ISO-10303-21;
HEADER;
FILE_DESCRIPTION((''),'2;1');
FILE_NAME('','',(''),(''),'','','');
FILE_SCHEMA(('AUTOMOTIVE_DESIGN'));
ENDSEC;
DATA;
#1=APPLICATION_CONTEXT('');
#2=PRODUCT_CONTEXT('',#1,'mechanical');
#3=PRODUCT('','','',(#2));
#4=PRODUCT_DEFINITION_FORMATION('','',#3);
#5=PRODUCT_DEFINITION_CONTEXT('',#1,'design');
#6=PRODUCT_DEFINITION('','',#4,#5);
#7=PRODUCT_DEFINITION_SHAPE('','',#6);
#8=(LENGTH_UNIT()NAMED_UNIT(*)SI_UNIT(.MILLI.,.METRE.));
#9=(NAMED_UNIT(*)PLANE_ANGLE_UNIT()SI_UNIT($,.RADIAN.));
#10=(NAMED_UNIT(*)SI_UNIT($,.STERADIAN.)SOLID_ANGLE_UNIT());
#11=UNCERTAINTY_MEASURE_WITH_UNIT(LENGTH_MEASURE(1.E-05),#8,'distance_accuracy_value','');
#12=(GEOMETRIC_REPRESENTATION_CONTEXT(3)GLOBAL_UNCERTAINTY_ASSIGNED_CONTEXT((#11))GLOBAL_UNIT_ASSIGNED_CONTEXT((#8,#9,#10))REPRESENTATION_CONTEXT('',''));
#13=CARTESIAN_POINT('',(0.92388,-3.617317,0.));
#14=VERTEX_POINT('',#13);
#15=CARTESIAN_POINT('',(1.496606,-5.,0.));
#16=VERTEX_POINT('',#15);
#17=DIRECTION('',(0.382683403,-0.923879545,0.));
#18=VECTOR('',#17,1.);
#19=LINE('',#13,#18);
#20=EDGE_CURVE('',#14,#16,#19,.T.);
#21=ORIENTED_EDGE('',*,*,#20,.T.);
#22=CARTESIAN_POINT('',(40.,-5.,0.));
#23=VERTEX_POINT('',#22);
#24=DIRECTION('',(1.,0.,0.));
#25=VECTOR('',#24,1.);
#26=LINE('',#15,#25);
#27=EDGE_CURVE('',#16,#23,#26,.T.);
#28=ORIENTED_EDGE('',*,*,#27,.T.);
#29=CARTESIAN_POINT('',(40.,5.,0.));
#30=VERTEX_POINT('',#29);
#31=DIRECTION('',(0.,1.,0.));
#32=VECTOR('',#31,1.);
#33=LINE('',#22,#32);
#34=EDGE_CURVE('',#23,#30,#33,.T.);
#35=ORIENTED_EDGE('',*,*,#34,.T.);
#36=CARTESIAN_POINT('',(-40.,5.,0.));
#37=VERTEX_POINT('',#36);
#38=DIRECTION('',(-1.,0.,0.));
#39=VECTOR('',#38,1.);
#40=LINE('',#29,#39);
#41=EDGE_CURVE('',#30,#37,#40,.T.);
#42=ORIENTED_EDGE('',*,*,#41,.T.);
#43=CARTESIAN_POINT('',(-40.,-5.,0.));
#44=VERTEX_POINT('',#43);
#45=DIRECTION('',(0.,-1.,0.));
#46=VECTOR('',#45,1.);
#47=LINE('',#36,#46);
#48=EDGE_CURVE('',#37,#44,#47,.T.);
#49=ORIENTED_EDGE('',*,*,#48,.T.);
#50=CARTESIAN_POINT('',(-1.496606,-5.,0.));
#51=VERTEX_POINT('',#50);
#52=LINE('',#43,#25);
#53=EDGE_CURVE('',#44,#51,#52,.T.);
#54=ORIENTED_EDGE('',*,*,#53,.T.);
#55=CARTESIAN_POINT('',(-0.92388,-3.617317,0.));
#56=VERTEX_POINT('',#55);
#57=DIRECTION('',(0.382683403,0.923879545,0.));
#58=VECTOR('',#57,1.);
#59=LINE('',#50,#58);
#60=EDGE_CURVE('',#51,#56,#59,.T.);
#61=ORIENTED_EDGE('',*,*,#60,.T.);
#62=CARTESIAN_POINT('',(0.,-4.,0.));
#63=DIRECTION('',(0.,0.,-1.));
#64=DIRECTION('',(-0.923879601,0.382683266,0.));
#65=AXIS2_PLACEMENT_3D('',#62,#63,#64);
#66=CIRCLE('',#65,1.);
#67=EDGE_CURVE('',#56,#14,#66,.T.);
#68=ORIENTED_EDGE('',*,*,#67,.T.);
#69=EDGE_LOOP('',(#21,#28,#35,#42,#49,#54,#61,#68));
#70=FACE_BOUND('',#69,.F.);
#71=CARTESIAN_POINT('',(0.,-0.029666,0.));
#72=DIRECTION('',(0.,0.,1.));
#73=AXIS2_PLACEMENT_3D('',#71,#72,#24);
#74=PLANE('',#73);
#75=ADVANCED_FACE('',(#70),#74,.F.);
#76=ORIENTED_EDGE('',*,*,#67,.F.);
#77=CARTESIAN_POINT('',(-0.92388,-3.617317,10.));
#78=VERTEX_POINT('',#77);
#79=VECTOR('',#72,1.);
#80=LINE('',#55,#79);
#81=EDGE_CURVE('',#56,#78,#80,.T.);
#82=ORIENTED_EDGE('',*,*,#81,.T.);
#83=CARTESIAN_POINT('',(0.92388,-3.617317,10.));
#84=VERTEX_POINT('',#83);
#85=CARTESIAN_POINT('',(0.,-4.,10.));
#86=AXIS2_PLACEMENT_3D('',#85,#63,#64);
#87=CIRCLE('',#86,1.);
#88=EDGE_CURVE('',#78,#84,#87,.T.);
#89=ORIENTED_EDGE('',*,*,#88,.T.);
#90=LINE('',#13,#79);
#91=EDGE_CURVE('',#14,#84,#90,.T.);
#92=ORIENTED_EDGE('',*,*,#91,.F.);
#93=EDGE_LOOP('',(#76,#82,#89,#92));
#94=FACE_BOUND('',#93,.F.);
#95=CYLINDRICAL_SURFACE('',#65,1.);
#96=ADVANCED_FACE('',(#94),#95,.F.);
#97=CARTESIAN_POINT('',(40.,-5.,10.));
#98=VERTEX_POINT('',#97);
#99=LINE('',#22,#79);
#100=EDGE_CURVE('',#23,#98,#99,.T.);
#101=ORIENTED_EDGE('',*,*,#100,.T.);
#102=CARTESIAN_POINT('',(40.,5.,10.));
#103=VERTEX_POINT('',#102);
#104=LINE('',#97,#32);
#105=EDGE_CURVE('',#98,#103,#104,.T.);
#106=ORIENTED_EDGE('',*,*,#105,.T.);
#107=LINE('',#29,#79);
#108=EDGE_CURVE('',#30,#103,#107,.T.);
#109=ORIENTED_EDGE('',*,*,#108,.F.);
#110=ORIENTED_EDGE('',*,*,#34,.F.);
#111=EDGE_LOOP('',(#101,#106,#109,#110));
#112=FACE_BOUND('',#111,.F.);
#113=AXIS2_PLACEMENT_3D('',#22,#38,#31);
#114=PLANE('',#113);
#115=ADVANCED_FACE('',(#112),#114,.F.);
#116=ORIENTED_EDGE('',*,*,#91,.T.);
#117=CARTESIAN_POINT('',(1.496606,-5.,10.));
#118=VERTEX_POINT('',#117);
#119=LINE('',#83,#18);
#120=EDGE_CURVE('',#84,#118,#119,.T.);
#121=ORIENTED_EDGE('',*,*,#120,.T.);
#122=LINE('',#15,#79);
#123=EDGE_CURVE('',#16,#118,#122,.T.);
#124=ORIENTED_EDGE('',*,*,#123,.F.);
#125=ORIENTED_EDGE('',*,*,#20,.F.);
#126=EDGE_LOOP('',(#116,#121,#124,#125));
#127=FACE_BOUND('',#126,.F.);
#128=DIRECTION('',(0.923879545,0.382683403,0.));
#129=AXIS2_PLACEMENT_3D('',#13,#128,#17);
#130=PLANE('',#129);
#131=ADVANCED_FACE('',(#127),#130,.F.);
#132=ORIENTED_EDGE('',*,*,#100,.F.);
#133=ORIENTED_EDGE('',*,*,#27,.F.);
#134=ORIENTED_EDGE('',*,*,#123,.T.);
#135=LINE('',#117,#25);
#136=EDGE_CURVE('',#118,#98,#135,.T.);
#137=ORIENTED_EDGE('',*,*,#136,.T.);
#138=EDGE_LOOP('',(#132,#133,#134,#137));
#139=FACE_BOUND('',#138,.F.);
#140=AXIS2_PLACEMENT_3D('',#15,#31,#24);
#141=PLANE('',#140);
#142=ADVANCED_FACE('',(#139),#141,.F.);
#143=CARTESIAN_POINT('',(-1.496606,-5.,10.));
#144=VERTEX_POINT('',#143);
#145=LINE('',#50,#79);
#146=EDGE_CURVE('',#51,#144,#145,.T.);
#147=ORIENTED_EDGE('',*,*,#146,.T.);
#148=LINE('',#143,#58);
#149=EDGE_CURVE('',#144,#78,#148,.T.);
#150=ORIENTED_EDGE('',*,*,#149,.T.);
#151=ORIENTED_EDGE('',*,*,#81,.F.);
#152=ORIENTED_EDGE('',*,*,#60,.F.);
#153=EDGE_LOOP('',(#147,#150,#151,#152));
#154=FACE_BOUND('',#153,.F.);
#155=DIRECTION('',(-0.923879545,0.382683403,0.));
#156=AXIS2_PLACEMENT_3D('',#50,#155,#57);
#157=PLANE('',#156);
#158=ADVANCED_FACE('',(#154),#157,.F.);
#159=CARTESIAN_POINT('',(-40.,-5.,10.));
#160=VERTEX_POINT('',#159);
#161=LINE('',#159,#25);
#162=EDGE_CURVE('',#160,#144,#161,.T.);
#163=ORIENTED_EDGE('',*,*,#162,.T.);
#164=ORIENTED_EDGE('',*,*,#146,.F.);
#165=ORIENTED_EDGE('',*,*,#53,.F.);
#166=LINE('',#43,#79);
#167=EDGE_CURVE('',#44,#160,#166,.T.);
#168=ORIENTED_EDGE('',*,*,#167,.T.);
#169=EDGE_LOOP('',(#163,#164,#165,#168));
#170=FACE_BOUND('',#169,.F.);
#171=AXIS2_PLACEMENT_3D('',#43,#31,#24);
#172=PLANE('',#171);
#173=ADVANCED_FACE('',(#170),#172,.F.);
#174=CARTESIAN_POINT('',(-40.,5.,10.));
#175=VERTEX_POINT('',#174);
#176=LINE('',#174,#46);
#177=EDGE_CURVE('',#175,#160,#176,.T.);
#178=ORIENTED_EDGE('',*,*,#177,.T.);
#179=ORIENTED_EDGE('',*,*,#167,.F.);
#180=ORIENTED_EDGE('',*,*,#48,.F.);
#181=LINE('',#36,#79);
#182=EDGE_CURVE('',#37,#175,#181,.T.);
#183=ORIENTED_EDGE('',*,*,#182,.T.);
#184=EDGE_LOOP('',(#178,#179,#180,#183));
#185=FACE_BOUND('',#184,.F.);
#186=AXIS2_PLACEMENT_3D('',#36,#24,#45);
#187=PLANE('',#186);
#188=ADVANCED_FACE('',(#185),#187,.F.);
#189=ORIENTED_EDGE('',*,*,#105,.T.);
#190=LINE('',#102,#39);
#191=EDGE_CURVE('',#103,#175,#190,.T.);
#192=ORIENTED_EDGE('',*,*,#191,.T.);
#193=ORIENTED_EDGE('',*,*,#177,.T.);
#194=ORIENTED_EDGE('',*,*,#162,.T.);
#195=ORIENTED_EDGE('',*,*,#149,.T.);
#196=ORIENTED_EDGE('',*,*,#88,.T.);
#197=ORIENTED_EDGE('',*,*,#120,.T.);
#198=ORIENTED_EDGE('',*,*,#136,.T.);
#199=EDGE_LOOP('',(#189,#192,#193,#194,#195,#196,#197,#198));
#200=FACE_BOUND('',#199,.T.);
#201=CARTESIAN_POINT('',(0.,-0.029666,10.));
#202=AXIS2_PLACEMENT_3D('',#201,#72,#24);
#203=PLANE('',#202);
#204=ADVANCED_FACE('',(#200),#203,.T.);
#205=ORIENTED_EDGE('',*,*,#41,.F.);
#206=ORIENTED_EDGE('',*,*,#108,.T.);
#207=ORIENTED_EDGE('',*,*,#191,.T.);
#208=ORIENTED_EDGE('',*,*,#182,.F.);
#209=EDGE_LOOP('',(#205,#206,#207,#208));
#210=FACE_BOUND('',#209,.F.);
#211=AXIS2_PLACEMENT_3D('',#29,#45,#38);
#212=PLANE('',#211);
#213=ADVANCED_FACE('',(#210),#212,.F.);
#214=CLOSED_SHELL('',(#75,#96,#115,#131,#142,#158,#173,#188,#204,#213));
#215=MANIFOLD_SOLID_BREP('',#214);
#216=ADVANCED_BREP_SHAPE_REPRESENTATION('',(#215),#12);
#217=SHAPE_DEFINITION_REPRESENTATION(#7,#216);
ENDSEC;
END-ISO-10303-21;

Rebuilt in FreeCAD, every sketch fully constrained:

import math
import FreeCAD as App
import Part
import Sketcher
Q = App.Units.Quantity

doc = App.newDocument("Part")
body = doc.addObject("PartDesign::Body", "Body")

# Sketch on XY plane
sketch1 = body.newObject("Sketcher::SketchObject", "Sketch")
sketch1.AttachmentSupport = (doc.getObject("XY_Plane"), [""])
sketch1.MapMode = "FlatFace"
sketch1.addGeometry(Part.LineSegment(App.Vector(40, 5, 0), App.Vector(-40, 5, 0)), False)
sketch1.addGeometry(Part.LineSegment(App.Vector(-40, 5, 0), App.Vector(-40, -5, 0)), False)
sketch1.addGeometry(Part.LineSegment(App.Vector(-40, -5, 0), App.Vector(-1.496606, -5, 0)), False)
sketch1.addGeometry(Part.LineSegment(App.Vector(-1.496606, -5, 0), App.Vector(-0.92388, -3.617317, 0)), False)
sketch1.addGeometry(Part.ArcOfCircle(Part.Circle(App.Vector(0, -4, 0), App.Vector(0, 0, 1), 1), math.radians(22.49999), math.radians(157.50001)), False)
sketch1.addGeometry(Part.LineSegment(App.Vector(0.92388, -3.617317, 0), App.Vector(1.496606, -5, 0)), False)
sketch1.addGeometry(Part.LineSegment(App.Vector(1.496606, -5, 0), App.Vector(40, -5, 0)), False)
sketch1.addGeometry(Part.LineSegment(App.Vector(40, -5, 0), App.Vector(40, 5, 0)), False)
sketch1.addConstraint(Sketcher.Constraint("Coincident", 0, 2, 1, 1))
sketch1.addConstraint(Sketcher.Constraint("Coincident", 1, 2, 2, 1))
sketch1.addConstraint(Sketcher.Constraint("Coincident", 2, 2, 3, 1))
sketch1.addConstraint(Sketcher.Constraint("Tangent", 3, 2, 4, 2))
sketch1.addConstraint(Sketcher.Constraint("Tangent", 4, 1, 5, 1))
sketch1.addConstraint(Sketcher.Constraint("Coincident", 5, 2, 6, 1))
sketch1.addConstraint(Sketcher.Constraint("Coincident", 6, 2, 7, 1))
sketch1.addConstraint(Sketcher.Constraint("Coincident", 7, 2, 0, 1))
sketch1.addConstraint(Sketcher.Constraint("Horizontal", 0))
sketch1.addConstraint(Sketcher.Constraint("Vertical", 1))
sketch1.addConstraint(Sketcher.Constraint("Horizontal", 2))
sketch1.addConstraint(Sketcher.Constraint("Horizontal", 6))
sketch1.addConstraint(Sketcher.Constraint("Vertical", 7))
sketch1.addConstraint(Sketcher.Constraint("Symmetric", 0, 2, 6, 2, -1, 1))
sketch1.addConstraint(Sketcher.Constraint("Symmetric", 3, 2, 4, 1, -2))
sketch1.addConstraint(Sketcher.Constraint("Horizontal", 2, 2, 5, 2))
sketch1.addConstraint(Sketcher.Constraint("Radius", 4, Q("1 mm")))
sketch1.addConstraint(Sketcher.Constraint("DistanceX", 0, 2, 0, 1, Q("80 mm")))
sketch1.addConstraint(Sketcher.Constraint("DistanceY", 1, 2, 1, 1, Q("10 mm")))
sketch1.addConstraint(Sketcher.Constraint("DistanceY", 4, 3, -1, 1, Q("4 mm")))
sketch1.addConstraint(Sketcher.Constraint("Angle", 3, Q("67.500002 deg")))
pad1 = body.newObject("PartDesign::Pad", "Pad")
pad1.Profile = sketch1
pad1.Length = 10

doc.recompute()
